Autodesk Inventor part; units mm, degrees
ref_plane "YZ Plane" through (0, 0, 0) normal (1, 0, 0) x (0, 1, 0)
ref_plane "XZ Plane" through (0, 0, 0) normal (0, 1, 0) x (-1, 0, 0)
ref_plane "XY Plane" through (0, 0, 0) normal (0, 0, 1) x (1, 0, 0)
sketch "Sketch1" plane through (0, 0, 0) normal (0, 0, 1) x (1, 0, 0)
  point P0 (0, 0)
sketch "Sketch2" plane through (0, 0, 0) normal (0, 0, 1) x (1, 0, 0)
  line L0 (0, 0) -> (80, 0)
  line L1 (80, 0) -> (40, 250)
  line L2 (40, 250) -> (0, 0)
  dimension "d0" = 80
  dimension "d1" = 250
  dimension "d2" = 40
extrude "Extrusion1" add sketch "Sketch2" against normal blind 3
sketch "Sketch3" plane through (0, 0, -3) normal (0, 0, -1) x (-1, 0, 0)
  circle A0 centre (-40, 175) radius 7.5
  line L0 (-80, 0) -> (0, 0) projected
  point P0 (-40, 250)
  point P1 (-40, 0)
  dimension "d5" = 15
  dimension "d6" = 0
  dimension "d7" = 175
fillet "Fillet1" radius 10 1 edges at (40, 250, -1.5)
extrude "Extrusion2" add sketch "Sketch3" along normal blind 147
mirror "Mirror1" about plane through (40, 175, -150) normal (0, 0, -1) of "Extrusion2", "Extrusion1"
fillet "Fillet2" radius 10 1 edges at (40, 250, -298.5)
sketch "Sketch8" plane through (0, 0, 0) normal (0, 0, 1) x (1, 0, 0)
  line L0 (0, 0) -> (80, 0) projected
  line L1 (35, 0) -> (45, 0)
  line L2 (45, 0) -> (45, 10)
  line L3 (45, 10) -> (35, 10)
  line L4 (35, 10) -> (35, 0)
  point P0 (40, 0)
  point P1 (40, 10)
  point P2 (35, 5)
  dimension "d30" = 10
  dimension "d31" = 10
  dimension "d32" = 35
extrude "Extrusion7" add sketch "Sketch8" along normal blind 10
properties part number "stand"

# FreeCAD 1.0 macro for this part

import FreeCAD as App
import Part
import Sketcher

V = App.Vector
Q = App.Units.Quantity


def edges_at(feature, points):
    """Names of the edges that pass closest to the given points."""
    edges = feature.Shape.Edges
    near = lambda p: min(range(len(edges)), key=lambda i: edges[i].distToShape(Part.Vertex(*p))[0])
    return sorted({f"Edge{near(p) + 1}" for p in points})

doc = App.newDocument("Part")
body = doc.addObject("PartDesign::Body", "Body")

# Sketch on XY plane
sketch1 = doc.addObject("Sketcher::SketchObject", "Sketch")
body.addObject(sketch1)
sketch1.AttachmentSupport = (doc.XY_Plane, [""])
sketch1.MapMode = "FlatFace"
sketch1.addGeometry([
    Part.LineSegment(V(40, 250, 0), V(0, 0, 0)),
    Part.LineSegment(V(0, 0, 0), V(80, 0, 0)),
    Part.LineSegment(V(80, 0, 0), V(40, 250, 0)),
], False)
sketch1.addConstraint([
    Sketcher.Constraint("Coincident", 0, 2, 1, 1),
    Sketcher.Constraint("Coincident", 1, 2, 2, 1),
    Sketcher.Constraint("Coincident", 2, 2, 0, 1),
    Sketcher.Constraint("Horizontal", 1),
    Sketcher.Constraint("Coincident", 0, 2, -1, 1),
    Sketcher.Constraint("Equal", 0, 2),
    Sketcher.Constraint("DistanceX", 1, 1, 1, 2, Q("80 mm")),
    Sketcher.Constraint("DistanceY", -1, 1, 2, 2, Q("250 mm")),
])
pad1 = doc.addObject("PartDesign::Pad", "Pad")
body.addObject(pad1)
pad1.Profile = sketch1
pad1.Length = 3
pad1.Reversed = True
doc.recompute()

fillet = doc.addObject("PartDesign::Fillet", "Fillet")
body.addObject(fillet)
fillet.Base = (pad1, edges_at(pad1, [(40, 250, -1.5)]))
fillet.Radius = 10

# Sketch on XY plane
sketch2 = doc.addObject("Sketcher::SketchObject", "Sketch001")
body.addObject(sketch2)
sketch2.AttachmentSupport = (doc.XY_Plane, [""])
sketch2.MapMode = "FlatFace"
sketch2.AttachmentOffset = App.Placement(V(0, 0, -3), App.Rotation())
sketch2.addGeometry(Part.Circle(V(40, 175, 0), V(0, 0, 1), 8), False)
sketch2.addConstraint([
    Sketcher.Constraint("Diameter", 0, Q("15 mm")),
    Sketcher.Constraint("DistanceY", -1, 1, 0, 3, Q("175 mm")),
    Sketcher.Constraint("DistanceX", -1, 1, 0, 3, Q("40 mm")),
])
pad2 = doc.addObject("PartDesign::Pad", "Pad001")
body.addObject(pad2)
pad2.Profile = sketch2
pad2.Length = 147
pad2.Reversed = True
doc.recompute()

datumplane = doc.addObject("PartDesign::Plane", "DatumPlane")
body.addObject(datumplane)
datumplane.AttachmentSupport = (doc.XY_Plane, [""])
datumplane.MapMode = "FlatFace"
datumplane.AttachmentOffset = App.Placement(V(0, 0, -150), App.Rotation())
mirrored = doc.addObject("PartDesign::Mirrored", "Mirrored")
body.addObject(mirrored)
mirrored.Originals = [pad2, pad1]
mirrored.MirrorPlane = (datumplane, [""])
body.Tip = mirrored
doc.recompute()

fillet2 = doc.addObject("PartDesign::Fillet", "Fillet001")
body.addObject(fillet2)
fillet2.Base = (mirrored, edges_at(mirrored, [(40, 250, -298.5)]))
fillet2.Radius = 10

# Sketch on XY plane
sketch3 = doc.addObject("Sketcher::SketchObject", "Sketch002")
body.addObject(sketch3)
sketch3.AttachmentSupport = (doc.XY_Plane, [""])
sketch3.MapMode = "FlatFace"
sketch3.addGeometry([
    Part.LineSegment(V(35, 10, 0), V(35, 0, 0)),
    Part.LineSegment(V(35, 0, 0), V(45, 0, 0)),
    Part.LineSegment(V(45, 0, 0), V(45, 10, 0)),
    Part.LineSegment(V(45, 10, 0), V(35, 10, 0)),
], False)
sketch3.addConstraint([
    Sketcher.Constraint("Coincident", 0, 2, 1, 1),
    Sketcher.Constraint("Coincident", 1, 2, 2, 1),
    Sketcher.Constraint("Coincident", 2, 2, 3, 1),
    Sketcher.Constraint("Coincident", 3, 2, 0, 1),
    Sketcher.Constraint("Vertical", 0),
    Sketcher.Constraint("Horizontal", 1),
    Sketcher.Constraint("Vertical", 2),
    Sketcher.Constraint("Horizontal", 3),
    Sketcher.Constraint("PointOnObject", 0, 2, -1),
    Sketcher.Constraint("Equal", 3, 0),
    Sketcher.Constraint("DistanceX", 1, 1, 1, 2, Q("10 mm")),
    Sketcher.Constraint("DistanceX", -1, 1, 0, 2, Q("35 mm")),
])
pad3 = doc.addObject("PartDesign::Pad", "Pad002")
body.addObject(pad3)
pad3.Profile = sketch3
pad3.Length = 10

doc.recompute()
